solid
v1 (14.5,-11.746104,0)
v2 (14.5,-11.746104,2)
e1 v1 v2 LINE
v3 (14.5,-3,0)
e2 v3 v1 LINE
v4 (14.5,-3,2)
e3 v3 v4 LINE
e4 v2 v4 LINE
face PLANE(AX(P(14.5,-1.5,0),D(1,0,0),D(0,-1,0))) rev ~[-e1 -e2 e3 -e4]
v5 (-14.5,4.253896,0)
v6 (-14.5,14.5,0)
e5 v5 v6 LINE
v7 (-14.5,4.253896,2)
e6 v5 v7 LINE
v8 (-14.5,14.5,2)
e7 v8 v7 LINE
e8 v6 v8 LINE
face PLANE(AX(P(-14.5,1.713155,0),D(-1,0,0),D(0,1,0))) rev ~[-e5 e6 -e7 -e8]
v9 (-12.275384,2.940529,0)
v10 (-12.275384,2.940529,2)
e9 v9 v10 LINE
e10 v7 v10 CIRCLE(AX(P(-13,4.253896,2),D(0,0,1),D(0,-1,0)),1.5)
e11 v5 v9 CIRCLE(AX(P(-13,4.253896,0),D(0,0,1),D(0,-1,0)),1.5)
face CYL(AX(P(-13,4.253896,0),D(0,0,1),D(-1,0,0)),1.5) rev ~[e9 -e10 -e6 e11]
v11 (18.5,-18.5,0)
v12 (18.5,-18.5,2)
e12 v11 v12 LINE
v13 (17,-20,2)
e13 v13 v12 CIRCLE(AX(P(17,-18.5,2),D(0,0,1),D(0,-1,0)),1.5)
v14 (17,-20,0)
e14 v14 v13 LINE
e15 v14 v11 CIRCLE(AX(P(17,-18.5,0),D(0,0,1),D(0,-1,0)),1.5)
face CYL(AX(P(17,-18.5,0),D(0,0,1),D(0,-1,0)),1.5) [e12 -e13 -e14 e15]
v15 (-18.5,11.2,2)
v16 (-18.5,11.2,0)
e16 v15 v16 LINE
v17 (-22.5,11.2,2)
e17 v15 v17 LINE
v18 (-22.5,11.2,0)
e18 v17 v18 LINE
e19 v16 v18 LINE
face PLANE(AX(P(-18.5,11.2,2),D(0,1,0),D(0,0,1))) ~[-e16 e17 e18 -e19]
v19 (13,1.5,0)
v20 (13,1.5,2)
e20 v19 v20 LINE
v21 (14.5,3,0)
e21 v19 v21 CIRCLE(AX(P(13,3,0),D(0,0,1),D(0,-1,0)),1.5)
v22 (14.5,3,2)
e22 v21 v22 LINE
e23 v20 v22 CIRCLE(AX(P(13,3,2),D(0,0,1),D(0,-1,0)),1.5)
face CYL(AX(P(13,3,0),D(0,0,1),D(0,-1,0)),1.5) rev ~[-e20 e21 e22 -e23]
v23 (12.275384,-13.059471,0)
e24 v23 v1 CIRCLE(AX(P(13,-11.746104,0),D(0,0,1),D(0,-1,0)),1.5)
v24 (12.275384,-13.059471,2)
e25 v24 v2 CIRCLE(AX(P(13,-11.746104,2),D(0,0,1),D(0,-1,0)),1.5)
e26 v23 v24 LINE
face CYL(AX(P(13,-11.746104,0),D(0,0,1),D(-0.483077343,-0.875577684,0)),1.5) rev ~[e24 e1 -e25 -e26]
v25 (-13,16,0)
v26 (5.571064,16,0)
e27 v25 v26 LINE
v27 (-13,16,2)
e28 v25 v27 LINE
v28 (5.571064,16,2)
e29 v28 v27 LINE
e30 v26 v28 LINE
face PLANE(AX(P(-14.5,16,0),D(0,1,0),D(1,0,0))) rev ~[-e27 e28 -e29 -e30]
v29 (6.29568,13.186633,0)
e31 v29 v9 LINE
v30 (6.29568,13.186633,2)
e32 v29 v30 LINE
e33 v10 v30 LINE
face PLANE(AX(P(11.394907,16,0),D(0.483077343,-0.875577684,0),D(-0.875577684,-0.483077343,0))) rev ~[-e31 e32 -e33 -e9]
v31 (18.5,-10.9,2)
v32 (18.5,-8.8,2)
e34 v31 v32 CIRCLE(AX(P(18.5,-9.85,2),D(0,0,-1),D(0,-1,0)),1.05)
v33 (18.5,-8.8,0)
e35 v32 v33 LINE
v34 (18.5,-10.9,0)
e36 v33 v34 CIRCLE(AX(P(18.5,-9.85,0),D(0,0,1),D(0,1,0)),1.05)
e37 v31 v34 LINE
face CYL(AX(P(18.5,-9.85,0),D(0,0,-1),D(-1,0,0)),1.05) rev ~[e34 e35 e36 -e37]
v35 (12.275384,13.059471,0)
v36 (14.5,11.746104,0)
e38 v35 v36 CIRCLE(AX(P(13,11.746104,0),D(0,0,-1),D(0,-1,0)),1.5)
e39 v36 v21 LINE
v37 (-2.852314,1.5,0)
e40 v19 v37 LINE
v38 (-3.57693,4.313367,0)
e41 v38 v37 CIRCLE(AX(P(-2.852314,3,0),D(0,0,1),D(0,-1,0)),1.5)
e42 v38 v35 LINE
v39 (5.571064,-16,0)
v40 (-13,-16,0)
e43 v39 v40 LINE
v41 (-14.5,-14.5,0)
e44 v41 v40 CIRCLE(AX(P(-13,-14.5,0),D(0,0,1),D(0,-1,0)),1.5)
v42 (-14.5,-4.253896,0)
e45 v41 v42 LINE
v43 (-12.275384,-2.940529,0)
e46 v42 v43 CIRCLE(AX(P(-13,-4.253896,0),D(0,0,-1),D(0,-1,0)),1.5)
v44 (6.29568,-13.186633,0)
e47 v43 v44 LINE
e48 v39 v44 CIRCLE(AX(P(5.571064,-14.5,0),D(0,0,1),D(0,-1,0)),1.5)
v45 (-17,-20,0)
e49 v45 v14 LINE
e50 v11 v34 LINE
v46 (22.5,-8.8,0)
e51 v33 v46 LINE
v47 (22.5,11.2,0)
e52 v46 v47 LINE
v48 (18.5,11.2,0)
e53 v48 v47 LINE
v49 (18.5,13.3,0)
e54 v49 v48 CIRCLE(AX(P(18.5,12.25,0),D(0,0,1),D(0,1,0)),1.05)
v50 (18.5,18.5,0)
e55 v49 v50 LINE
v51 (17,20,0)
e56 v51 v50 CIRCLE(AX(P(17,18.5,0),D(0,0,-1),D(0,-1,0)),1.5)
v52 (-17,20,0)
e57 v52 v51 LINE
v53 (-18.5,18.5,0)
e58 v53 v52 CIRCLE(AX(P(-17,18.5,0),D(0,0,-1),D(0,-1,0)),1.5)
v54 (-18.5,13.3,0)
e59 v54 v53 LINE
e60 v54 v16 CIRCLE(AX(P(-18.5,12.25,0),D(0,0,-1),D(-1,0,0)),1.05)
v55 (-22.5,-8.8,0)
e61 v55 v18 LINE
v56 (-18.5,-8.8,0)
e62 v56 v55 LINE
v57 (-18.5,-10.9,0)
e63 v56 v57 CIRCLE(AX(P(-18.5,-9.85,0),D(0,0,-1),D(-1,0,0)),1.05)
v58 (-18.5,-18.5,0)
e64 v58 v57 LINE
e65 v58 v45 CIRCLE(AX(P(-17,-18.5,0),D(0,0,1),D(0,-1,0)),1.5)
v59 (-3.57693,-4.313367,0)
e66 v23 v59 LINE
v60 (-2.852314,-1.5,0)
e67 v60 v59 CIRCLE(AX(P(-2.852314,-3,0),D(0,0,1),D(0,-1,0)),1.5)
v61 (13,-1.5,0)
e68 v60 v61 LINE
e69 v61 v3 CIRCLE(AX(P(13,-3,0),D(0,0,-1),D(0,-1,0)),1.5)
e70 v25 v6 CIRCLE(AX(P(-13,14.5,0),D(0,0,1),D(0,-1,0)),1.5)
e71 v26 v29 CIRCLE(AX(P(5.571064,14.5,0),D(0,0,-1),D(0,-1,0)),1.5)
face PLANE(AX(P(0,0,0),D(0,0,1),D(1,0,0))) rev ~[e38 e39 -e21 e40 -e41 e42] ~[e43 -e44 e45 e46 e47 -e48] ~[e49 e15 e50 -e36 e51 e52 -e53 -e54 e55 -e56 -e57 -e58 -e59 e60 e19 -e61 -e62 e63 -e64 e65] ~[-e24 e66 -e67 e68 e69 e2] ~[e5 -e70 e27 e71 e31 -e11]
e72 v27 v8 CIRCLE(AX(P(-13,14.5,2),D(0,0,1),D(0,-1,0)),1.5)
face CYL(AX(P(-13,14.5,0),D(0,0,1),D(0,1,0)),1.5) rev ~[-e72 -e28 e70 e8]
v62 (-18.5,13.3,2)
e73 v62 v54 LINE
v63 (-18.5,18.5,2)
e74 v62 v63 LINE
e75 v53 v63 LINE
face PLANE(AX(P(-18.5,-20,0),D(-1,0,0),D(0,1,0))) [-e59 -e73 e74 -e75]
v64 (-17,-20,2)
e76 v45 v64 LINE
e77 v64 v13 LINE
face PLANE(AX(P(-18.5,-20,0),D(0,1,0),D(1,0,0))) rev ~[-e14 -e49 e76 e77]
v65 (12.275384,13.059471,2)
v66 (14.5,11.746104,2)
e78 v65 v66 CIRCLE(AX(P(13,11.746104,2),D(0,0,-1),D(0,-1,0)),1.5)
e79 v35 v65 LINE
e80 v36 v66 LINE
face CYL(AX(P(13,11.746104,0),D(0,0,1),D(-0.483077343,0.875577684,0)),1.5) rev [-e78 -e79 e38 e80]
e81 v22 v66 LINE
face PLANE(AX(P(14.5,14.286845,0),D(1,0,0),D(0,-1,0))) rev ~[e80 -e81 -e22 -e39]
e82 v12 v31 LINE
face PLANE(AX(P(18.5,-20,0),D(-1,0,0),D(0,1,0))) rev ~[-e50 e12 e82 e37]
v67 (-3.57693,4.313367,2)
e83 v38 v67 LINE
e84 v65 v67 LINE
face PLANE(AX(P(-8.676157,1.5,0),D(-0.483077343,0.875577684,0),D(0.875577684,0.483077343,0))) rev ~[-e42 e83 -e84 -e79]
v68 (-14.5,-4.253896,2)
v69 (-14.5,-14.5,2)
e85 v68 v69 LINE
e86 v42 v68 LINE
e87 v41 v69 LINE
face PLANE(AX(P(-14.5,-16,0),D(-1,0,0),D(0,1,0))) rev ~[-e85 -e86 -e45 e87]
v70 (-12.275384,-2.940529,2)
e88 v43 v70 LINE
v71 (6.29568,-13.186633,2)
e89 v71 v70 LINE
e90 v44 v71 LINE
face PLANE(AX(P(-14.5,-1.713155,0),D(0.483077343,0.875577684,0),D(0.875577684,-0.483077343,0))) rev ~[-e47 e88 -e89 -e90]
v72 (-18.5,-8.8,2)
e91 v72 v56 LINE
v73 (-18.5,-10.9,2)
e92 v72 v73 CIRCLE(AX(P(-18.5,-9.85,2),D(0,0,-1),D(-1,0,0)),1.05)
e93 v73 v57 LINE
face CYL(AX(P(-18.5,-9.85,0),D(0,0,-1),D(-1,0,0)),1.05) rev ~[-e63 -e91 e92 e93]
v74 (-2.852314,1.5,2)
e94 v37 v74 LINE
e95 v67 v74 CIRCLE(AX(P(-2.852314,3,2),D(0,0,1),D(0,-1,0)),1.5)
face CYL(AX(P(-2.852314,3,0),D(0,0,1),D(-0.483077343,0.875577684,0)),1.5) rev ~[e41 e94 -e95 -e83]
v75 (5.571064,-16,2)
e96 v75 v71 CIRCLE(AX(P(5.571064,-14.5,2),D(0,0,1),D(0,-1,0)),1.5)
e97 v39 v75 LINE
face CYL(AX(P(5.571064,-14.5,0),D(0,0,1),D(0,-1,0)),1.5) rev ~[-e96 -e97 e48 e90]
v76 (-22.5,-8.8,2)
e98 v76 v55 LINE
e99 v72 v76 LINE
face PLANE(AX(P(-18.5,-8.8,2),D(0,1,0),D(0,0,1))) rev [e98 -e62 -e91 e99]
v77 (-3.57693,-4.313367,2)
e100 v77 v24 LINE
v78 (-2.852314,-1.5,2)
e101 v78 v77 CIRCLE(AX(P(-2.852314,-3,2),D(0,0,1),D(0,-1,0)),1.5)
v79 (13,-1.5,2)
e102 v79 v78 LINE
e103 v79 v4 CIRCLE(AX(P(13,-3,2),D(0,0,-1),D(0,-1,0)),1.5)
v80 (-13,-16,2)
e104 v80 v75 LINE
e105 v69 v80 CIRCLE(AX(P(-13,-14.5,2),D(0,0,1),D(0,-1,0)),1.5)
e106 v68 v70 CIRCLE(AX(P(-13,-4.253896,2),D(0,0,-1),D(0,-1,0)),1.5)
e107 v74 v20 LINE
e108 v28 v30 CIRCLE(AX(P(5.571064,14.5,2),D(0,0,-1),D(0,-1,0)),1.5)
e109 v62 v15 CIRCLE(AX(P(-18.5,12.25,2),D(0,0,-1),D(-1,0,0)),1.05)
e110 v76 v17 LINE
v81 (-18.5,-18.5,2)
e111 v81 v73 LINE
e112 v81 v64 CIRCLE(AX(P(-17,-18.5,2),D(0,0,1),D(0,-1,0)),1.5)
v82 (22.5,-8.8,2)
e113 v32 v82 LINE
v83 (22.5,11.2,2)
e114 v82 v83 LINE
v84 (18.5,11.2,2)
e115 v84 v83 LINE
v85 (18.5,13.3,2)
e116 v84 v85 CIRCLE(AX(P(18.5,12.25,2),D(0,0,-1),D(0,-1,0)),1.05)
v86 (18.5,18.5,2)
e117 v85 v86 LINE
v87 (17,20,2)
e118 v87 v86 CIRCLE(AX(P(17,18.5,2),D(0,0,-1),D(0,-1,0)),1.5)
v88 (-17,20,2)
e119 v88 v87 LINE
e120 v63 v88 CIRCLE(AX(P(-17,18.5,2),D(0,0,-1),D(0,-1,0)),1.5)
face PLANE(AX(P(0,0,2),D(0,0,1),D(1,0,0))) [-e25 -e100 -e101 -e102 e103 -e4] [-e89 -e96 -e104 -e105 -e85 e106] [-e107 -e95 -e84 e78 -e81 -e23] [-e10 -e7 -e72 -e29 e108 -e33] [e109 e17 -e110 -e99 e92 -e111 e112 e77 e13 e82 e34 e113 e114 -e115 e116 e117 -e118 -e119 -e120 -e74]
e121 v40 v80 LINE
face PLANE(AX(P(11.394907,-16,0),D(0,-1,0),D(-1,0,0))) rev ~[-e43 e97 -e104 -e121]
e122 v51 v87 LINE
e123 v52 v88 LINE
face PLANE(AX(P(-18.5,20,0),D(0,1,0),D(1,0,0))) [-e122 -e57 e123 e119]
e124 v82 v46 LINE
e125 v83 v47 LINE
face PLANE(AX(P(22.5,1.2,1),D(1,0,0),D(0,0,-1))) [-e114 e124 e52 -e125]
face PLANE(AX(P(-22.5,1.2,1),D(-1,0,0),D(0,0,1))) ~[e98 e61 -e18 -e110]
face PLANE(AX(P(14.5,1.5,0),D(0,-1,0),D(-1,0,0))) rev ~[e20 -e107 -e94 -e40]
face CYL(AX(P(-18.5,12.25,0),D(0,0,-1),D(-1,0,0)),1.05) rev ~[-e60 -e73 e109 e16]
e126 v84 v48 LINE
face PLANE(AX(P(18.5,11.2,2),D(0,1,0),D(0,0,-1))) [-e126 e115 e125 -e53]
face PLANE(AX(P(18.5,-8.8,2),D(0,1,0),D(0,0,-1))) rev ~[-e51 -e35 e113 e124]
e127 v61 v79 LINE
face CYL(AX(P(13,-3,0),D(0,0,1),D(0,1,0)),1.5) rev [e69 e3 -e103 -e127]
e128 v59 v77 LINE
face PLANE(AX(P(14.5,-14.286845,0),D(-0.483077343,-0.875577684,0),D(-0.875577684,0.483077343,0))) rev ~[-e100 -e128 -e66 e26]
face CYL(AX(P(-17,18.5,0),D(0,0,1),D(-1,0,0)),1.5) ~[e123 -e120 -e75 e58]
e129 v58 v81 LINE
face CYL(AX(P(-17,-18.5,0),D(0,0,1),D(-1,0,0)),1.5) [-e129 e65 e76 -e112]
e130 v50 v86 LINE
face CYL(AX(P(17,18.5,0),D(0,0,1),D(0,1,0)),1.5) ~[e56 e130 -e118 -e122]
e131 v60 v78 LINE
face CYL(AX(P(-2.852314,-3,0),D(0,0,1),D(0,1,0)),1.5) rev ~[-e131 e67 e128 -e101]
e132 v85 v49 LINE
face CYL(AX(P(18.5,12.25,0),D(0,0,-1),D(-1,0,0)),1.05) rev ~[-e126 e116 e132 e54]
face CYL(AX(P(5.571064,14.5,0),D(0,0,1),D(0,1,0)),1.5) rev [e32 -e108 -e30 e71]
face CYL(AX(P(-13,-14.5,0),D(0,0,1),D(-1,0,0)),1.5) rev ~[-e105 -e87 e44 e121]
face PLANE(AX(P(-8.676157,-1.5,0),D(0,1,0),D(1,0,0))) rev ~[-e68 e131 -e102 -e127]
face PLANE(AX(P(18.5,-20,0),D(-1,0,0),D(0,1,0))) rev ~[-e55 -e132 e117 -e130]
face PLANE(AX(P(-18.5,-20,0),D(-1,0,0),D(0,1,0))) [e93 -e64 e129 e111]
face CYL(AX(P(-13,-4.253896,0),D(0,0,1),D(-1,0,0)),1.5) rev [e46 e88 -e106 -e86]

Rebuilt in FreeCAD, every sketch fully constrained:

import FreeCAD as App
import Part
import Sketcher

V = App.Vector


def edges_at(feature, points):
    """Names of the edges that pass closest to the given points."""
    edges = feature.Shape.Edges
    near = lambda p: min(range(len(edges)), key=lambda i: edges[i].distToShape(Part.Vertex(*p))[0])
    return sorted({f"Edge{near(p) + 1}" for p in points})


def add_polygon(sketch, points):
    """Adds a closed chain of lines whose ends are joined by coincident constraints."""
    first, n = sketch.GeometryCount, len(points)
    for a, b in zip(points, points[1:] + points[:1]):
        sketch.addGeometry(Part.LineSegment(App.Vector(*a, 0), App.Vector(*b, 0)), False)
    for i in range(n):
        sketch.addConstraint(Sketcher.Constraint("Coincident", first + i, 2, first + (i + 1) % n, 1))

doc = App.newDocument("Part")
body = doc.addObject("PartDesign::Body", "Body")

# Sketch on XY plane
sketch1 = body.newObject("Sketcher::SketchObject", "Sketch")
sketch1.AttachmentSupport = (doc.getObject("XY_Plane"), [""])
sketch1.MapMode = "FlatFace"
add_polygon(sketch1, [(-18, 20), (-18, -20), (18, -20), (18, 20)])  # lines 0-3
sketch1.addConstraint(Sketcher.Constraint("Vertical", 0))
sketch1.addConstraint(Sketcher.Constraint("Horizontal", 1))
sketch1.addConstraint(Sketcher.Constraint("Vertical", 2))
sketch1.addConstraint(Sketcher.Constraint("Horizontal", 3))
sketch1.addConstraint(Sketcher.Constraint("Symmetric", 0, 2, 2, 2, -1, 1))
sketch1.addConstraint(Sketcher.Constraint("DistanceX", 1, 1, 1, 2, 37.0))
sketch1.addConstraint(Sketcher.Constraint("DistanceY", 0, 2, 0, 1, 40.0))
pad1 = body.newObject("PartDesign::Pad", "Pad")
pad1.Profile = sketch1
pad1.Length = 2

# Sketch on YZ plane
sketch2 = body.newObject("Sketcher::SketchObject", "Sketch001")
sketch2.AttachmentSupport = (doc.getObject("YZ_Plane"), [""])
sketch2.MapMode = "FlatFace"
sketch2.AttachmentOffset = App.Placement(V(0, 0, 18.5), App.Rotation())
add_polygon(sketch2, [(11.2, 2), (-8.8, 2), (-8.8, 0), (11.2, 0)])  # lines 0-3
sketch2.addConstraint(Sketcher.Constraint("Horizontal", 0))
sketch2.addConstraint(Sketcher.Constraint("Vertical", 1))
sketch2.addConstraint(Sketcher.Constraint("Horizontal", 2))
sketch2.addConstraint(Sketcher.Constraint("Vertical", 3))
sketch2.addConstraint(Sketcher.Constraint("PointOnObject", 1, 2, -1))
sketch2.addConstraint(Sketcher.Constraint("DistanceX", 0, 2, 0, 1, 20.0))
sketch2.addConstraint(Sketcher.Constraint("DistanceY", 1, 2, 1, 1, 2.0))
sketch2.addConstraint(Sketcher.Constraint("DistanceX", 0, 2, -1, 1, 8.8))
pad2 = body.newObject("PartDesign::Pad", "Pad001")
pad2.Profile = sketch2
pad2.Length = 4
doc.recompute()

mirrored = body.newObject("PartDesign::Mirrored", "Mirrored")
mirrored.Originals = [pad2]
mirrored.MirrorPlane = (doc.getObject("YZ_Plane"), [""])
body.Tip = mirrored

# Sketch on XY plane
sketch3 = body.newObject("Sketcher::SketchObject", "Sketch002")
sketch3.AttachmentSupport = (doc.getObject("XY_Plane"), [""])
sketch3.MapMode = "FlatFace"
sketch3.addGeometry(Part.Circle(V(-18.5, 12.2, 0), V(0, 0, 1), 1.1), False)
sketch3.addGeometry(Part.Circle(V(-18.5, -9.8, 0), V(0, 0, 1), 1.1), False)
sketch3.addGeometry(Part.Circle(V(18.5, -9.8, 0), V(0, 0, 1), 1.1), False)
sketch3.addGeometry(Part.Circle(V(18.5, 12.2, 0), V(0, 0, 1), 1.1), False)
sketch3.addConstraint(Sketcher.Constraint("Equal", 0, 1))
sketch3.addConstraint(Sketcher.Constraint("Equal", 1, 2))
sketch3.addConstraint(Sketcher.Constraint("Equal", 2, 3))
sketch3.addConstraint(Sketcher.Constraint("Symmetric", 1, 3, 2, 3, -2))
sketch3.addConstraint(Sketcher.Constraint("Symmetric", 0, 3, 3, 3, -2))
sketch3.addConstraint(Sketcher.Constraint("Vertical", 0, 3, 1, 3))
sketch3.addConstraint(Sketcher.Constraint("Diameter", 0, 2.1))
sketch3.addConstraint(Sketcher.Constraint("DistanceX", 1, 3, 2, 3, 37.0))
sketch3.addConstraint(Sketcher.Constraint("DistanceY", 1, 3, 0, 3, 22.1))
sketch3.addConstraint(Sketcher.Constraint("DistanceY", -1, 1, 0, 3, 12.25))
pocket1 = body.newObject("PartDesign::Pocket", "Pocket")
pocket1.Profile = sketch3
pocket1.Length = 3
pocket1.Reversed = True

# Sketch on XY plane
sketch4 = body.newObject("Sketcher::SketchObject", "Sketch003")
sketch4.AttachmentSupport = (doc.getObject("XY_Plane"), [""])
sketch4.MapMode = "FlatFace"
add_polygon(sketch4, [(-14, -2), (11, -16), (-14, -16)])  # lines 0-2
add_polygon(sketch4, [(14, -2), (14, -14), (-9, -2)])  # lines 3-5
add_polygon(sketch4, [(14, 14), (14, 2), (-9, 2)])  # lines 6-8
add_polygon(sketch4, [(11, 16), (-14, 2), (-14, 16)])  # lines 9-11
sketch4.addConstraint(Sketcher.Constraint("Horizontal", 1))
sketch4.addConstraint(Sketcher.Constraint("Vertical", 2))
sketch4.addConstraint(Sketcher.Constraint("Vertical", 3))
sketch4.addConstraint(Sketcher.Constraint("Horizontal", 5))
sketch4.addConstraint(Sketcher.Constraint("Vertical", 6))
sketch4.addConstraint(Sketcher.Constraint("Horizontal", 7))
sketch4.addConstraint(Sketcher.Constraint("Vertical", 10))
sketch4.addConstraint(Sketcher.Constraint("Horizontal", 11))
sketch4.addConstraint(Sketcher.Constraint("Symmetric", 5, 2, 6, 2, -1))
sketch4.addConstraint(Sketcher.Constraint("Symmetric", 2, 2, 9, 2, -1))
sketch4.addConstraint(Sketcher.Constraint("Symmetric", 0, 2, 11, 2, -1))
sketch4.addConstraint(Sketcher.Constraint("Parallel", 0, 4))
sketch4.addConstraint(Sketcher.Constraint("Parallel", 8, 9))
sketch4.addConstraint(Sketcher.Constraint("Vertical", 4, 2, 7, 2))
sketch4.addConstraint(Sketcher.Constraint("DistanceY", 0, 2, -1, 1, 16.0))
sketch4.addConstraint(Sketcher.Constraint("DistanceX", 1, 2, 3, 2, 29.0))
sketch4.addConstraint(Sketcher.Constraint("DistanceY", 5, 2, 6, 2, 3.0))
sketch4.addConstraint(Sketcher.Constraint("DistanceX", 1, 2, -1, 1, 14.5))
sketch4.addConstraint(Sketcher.Constraint("Distance", 4, 26.469561))
sketch4.addConstraint(Sketcher.Constraint("DistanceX", 1, 2, 1, 1, 25.894907))
sketch4.addConstraint(Sketcher.Constraint("DistanceX", 5, 1, 5, 2, 23.176157))
pocket2 = body.newObject("PartDesign::Pocket", "Pocket001")
pocket2.Profile = sketch4
pocket2.Length = 10
pocket2.Reversed = True
doc.recompute()

fillet = body.newObject("PartDesign::Fillet", "Fillet")
fillet.Base = (pocket2, edges_at(pocket2, [
    (11.395, 16, 1),
    (-14.5, 16, 1),
    (-14.5, 1.713, 1),
    (-14.5, -1.713, 1),
    (-14.5, -16, 1),
    (11.395, -16, 1),
    (18.5, -20, 1),
    (-18.5, -20, 1),
    (-18.5, 20, 1),
    (18.5, 20, 1),
    (14.5, -1.5, 1),
    (-8.676, -1.5, 1),
    (14.5, -14.287, 1),
    (14.5, 1.5, 1),
    (14.5, 14.287, 1),
    (-8.676, 1.5, 1),
]))
fillet.Radius = 1.5

doc.recompute()
